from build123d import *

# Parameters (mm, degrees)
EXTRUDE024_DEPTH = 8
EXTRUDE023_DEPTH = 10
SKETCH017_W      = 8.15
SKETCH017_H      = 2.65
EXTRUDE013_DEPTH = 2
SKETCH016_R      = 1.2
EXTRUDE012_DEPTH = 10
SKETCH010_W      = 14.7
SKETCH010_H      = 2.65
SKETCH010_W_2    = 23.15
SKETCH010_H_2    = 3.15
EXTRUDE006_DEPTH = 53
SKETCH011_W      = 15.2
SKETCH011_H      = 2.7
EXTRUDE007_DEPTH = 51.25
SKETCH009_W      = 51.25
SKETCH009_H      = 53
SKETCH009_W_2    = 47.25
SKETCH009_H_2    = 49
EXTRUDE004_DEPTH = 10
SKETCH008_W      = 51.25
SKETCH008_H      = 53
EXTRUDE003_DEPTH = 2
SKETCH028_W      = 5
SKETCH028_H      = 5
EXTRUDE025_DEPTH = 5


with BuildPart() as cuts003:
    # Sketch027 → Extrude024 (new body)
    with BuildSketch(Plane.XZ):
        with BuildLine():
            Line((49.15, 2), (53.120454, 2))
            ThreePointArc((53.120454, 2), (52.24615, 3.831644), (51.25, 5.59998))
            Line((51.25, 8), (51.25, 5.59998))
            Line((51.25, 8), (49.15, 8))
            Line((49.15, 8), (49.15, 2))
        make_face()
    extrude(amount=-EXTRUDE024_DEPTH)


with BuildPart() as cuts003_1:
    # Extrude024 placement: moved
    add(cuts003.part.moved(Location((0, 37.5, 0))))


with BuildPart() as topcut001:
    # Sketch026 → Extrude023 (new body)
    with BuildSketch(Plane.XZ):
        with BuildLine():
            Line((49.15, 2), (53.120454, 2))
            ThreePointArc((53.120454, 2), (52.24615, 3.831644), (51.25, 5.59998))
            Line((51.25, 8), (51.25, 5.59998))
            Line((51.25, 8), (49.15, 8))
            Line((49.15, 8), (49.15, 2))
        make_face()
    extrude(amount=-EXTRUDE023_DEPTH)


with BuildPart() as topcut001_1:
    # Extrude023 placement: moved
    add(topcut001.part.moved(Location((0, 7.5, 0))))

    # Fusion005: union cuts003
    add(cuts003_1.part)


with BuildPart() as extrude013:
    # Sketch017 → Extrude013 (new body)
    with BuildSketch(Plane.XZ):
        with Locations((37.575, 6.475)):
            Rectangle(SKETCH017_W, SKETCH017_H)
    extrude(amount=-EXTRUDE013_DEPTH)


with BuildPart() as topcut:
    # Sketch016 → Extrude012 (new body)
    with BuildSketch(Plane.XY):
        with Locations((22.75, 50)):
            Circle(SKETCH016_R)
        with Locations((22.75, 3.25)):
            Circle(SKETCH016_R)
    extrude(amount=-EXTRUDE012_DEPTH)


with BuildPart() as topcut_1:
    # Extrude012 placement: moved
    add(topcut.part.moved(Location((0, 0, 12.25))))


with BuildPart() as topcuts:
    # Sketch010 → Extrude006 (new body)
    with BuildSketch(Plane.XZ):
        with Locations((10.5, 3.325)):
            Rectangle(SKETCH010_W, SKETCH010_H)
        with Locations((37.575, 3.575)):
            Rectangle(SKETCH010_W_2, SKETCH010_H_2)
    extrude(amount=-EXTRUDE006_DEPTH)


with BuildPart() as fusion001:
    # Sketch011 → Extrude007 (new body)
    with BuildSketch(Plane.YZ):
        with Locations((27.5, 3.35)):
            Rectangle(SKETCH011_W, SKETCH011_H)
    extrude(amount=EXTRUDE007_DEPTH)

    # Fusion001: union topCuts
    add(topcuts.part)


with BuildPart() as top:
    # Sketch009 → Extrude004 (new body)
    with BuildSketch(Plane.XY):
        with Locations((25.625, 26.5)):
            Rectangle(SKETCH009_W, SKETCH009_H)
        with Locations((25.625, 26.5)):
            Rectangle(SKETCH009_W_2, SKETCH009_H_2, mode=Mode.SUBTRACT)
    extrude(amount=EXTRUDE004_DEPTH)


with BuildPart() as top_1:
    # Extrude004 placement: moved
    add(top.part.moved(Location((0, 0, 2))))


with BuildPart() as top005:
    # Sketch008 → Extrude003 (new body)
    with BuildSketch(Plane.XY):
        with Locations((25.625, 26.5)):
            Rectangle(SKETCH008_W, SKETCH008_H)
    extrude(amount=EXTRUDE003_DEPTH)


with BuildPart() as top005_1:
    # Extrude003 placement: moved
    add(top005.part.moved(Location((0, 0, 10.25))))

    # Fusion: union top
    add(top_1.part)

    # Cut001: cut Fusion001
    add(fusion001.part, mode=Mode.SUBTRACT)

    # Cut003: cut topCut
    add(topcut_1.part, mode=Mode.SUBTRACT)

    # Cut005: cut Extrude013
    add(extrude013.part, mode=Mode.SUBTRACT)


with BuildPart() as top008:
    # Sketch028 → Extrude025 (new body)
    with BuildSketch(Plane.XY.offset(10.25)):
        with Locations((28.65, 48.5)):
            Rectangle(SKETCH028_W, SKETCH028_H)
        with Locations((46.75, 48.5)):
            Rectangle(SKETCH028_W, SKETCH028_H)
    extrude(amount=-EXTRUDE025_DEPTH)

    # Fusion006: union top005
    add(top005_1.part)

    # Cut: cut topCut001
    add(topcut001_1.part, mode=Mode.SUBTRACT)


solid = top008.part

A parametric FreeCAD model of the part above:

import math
import FreeCAD as App
import Part
import Sketcher
Q = App.Units.Quantity


def add_polygon(sketch, points):
    """Adds a closed chain of lines whose ends are joined by coincident constraints."""
    first, n = sketch.GeometryCount, len(points)
    for a, b in zip(points, points[1:] + points[:1]):
        sketch.addGeometry(Part.LineSegment(App.Vector(*a, 0), App.Vector(*b, 0)), False)
    for i in range(n):
        sketch.addConstraint(Sketcher.Constraint("Coincident", first + i, 2, first + (i + 1) % n, 1))

doc = App.newDocument("Part")
params = doc.addObject("Spreadsheet::Sheet", "Params")
for row, (alias, value) in enumerate([
    ("sketch1_height", "6 mm"),
    ("sketch1_width", "2.1 mm"),
    ("pad1_length", "8 mm"),
    ("sketch2_height", "6 mm"),
    ("sketch2_width", "2.1 mm"),
    ("pad2_length", "10 mm"),
    ("sketch3_width", "8.15 mm"),
    ("sketch3_height", "2.65 mm"),
    ("pad3_length", "2 mm"),
    ("sketch4_diameter", "2.4 mm"),
    ("pad4_length", "10 mm"),
    ("sketch5_width", "14.7 mm"),
    ("sketch5_width2", "23.15 mm"),
    ("sketch5_height", "2.65 mm"),
    ("sketch5_height2", "3.15 mm"),
    ("pad5_length", "53 mm"),
    ("sketch6_width", "15.2 mm"),
    ("sketch6_height", "2.7 mm"),
    ("pad6_length", "51.25 mm"),
    ("sketch7_height", "53 mm"),
    ("sketch7_height2", "49 mm"),
    ("sketch7_width", "51.25 mm"),
    ("pad7_length", "10 mm"),
    ("sketch8_height", "53 mm"),
    ("sketch8_width", "51.25 mm"),
    ("pad8_length", "2 mm"),
    ("sketch9_width", "5 mm"),
    ("pad9_length", "5 mm"),
], start=1):
    params.set(f"A{row}", alias)
    params.set(f"B{row}", "=" + value)
    params.setAlias(f"B{row}", alias)

body = doc.addObject("PartDesign::Body", "Body")

# Sketch on XZ plane
sketch1 = body.newObject("Sketcher::SketchObject", "Sketch")
sketch1.AttachmentSupport = (doc.getObject("XZ_Plane"), [""])
sketch1.MapMode = "FlatFace"
sketch1.addGeometry([
    Part.LineSegment(App.Vector(49.15, 2, 0), App.Vector(53.120454, 2, 0)),  # 0
    Part.ArcOfCircle(Part.Circle(App.Vector(25.625046, -9.999975, 0), App.Vector(0, 0, 1), 29.999947), math.radians(23.578169), math.radians(31.332211)),  # 1
    Part.LineSegment(App.Vector(51.25, 5.59998, 0), App.Vector(51.25, 8, 0)),  # 2
    Part.LineSegment(App.Vector(51.25, 8, 0), App.Vector(49.15, 8, 0)),  # 3
    Part.LineSegment(App.Vector(49.15, 8, 0), App.Vector(49.15, 2, 0)),  # 4
], False)
sketch1.addConstraint([
    Sketcher.Constraint("Coincident", 0, 2, 1, 1),
    Sketcher.Constraint("Coincident", 1, 2, 2, 1),
    Sketcher.Constraint("Coincident", 2, 2, 3, 1),
    Sketcher.Constraint("Coincident", 3, 2, 4, 1),
    Sketcher.Constraint("Coincident", 4, 2, 0, 1),
    Sketcher.Constraint("Horizontal", 0),
    Sketcher.Constraint("Vertical", 2),
    Sketcher.Constraint("Horizontal", 3),
    Sketcher.Constraint("Vertical", 4),
    Sketcher.Constraint("DistanceY", 4, 2, 4, 1, Q("6 mm")),
    Sketcher.Constraint("DistanceX", 3, 2, 3, 1, Q("2.1 mm")),
    Sketcher.Constraint("DistanceY", -1, 1, 0, 2, Q("2 mm")),
    Sketcher.Constraint("DistanceX", -1, 1, 1, 2, Q("51.25 mm")),
    Sketcher.Constraint("Radius", 1, Q("29.999947 mm")),
    Sketcher.Constraint("DistanceY", 2, 1, 2, 2, Q("2.40002 mm")),
    Sketcher.Constraint("DistanceX", 0, 1, 0, 2, Q("3.970454 mm")),
])
sketch1.setExpression("Constraints[9]", "Params.sketch1_height")
sketch1.setExpression("Constraints[10]", "Params.sketch1_width")
pad1 = body.newObject("PartDesign::Pad", "Pad")
pad1.Profile = sketch1
pad1.setExpression("Length", "Params.pad1_length")
pad1.Reversed = True
body2 = doc.addObject("PartDesign::Body", "Body001")
doc.recompute()

body.Placement = App.Placement(App.Vector(0, 37.5, 0), App.Rotation(App.Vector(0, 0, 1), 0))
boolean = body2.newObject("PartDesign::Boolean", "Boolean")
boolean.Type = "Fuse"
boolean.addObjects([body])
body3 = doc.addObject("PartDesign::Body", "Body002")

# Sketch on XZ plane
sketch2 = body3.newObject("Sketcher::SketchObject", "Sketch001")
sketch2.AttachmentSupport = (doc.getObject("XZ_Plane002"), [""])
sketch2.MapMode = "FlatFace"
sketch2.addGeometry([
    Part.LineSegment(App.Vector(49.15, 2, 0), App.Vector(53.120454, 2, 0)),  # 0
    Part.ArcOfCircle(Part.Circle(App.Vector(25.625046, -9.999975, 0), App.Vector(0, 0, 1), 29.999947), math.radians(23.578169), math.radians(31.332211)),  # 1
    Part.LineSegment(App.Vector(51.25, 5.59998, 0), App.Vector(51.25, 8, 0)),  # 2
    Part.LineSegment(App.Vector(51.25, 8, 0), App.Vector(49.15, 8, 0)),  # 3
    Part.LineSegment(App.Vector(49.15, 8, 0), App.Vector(49.15, 2, 0)),  # 4
], False)
sketch2.addConstraint([
    Sketcher.Constraint("Coincident", 0, 2, 1, 1),
    Sketcher.Constraint("Coincident", 1, 2, 2, 1),
    Sketcher.Constraint("Coincident", 2, 2, 3, 1),
    Sketcher.Constraint("Coincident", 3, 2, 4, 1),
    Sketcher.Constraint("Coincident", 4, 2, 0, 1),
    Sketcher.Constraint("Horizontal", 0),
    Sketcher.Constraint("Vertical", 2),
    Sketcher.Constraint("Horizontal", 3),
    Sketcher.Constraint("Vertical", 4),
    Sketcher.Constraint("DistanceY", 4, 2, 4, 1, Q("6 mm")),
    Sketcher.Constraint("DistanceX", 3, 2, 3, 1, Q("2.1 mm")),
    Sketcher.Constraint("DistanceY", -1, 1, 0, 2, Q("2 mm")),
    Sketcher.Constraint("DistanceX", -1, 1, 1, 2, Q("51.25 mm")),
    Sketcher.Constraint("Radius", 1, Q("29.999947 mm")),
    Sketcher.Constraint("DistanceY", 2, 1, 2, 2, Q("2.40002 mm")),
    Sketcher.Constraint("DistanceX", 0, 1, 0, 2, Q("3.970454 mm")),
])
sketch2.setExpression("Constraints[9]", "Params.sketch2_height")
sketch2.setExpression("Constraints[10]", "Params.sketch2_width")
pad2 = body3.newObject("PartDesign::Pad", "Pad001")
pad2.Profile = sketch2
pad2.setExpression("Length", "Params.pad2_length")
pad2.Reversed = True
body4 = doc.addObject("PartDesign::Body", "Body003")
body4.AllowCompound = True
doc.recompute()

body3.Placement = App.Placement(App.Vector(0, 7.5, 0), App.Rotation(App.Vector(0, 0, 1), 0))
boolean2 = body4.newObject("PartDesign::Boolean", "Boolean001")
boolean2.Type = "Fuse"
boolean2.addObjects([body3])
doc.recompute()

boolean3 = body4.newObject("PartDesign::Boolean", "Boolean002")
boolean3.Type = "Fuse"
boolean3.addObjects([body2])
body5 = doc.addObject("PartDesign::Body", "Body004")

# Sketch on XZ plane
sketch3 = body5.newObject("Sketcher::SketchObject", "Sketch002")
sketch3.AttachmentSupport = (doc.getObject("XZ_Plane004"), [""])
sketch3.MapMode = "FlatFace"
add_polygon(sketch3, [(33.5, 7.8), (33.5, 5.15), (41.65, 5.15), (41.65, 7.8)])  # lines 0-3
sketch3.addConstraint([
    Sketcher.Constraint("Vertical", 0),
    Sketcher.Constraint("Horizontal", 1),
    Sketcher.Constraint("Vertical", 2),
    Sketcher.Constraint("Horizontal", 3),
    Sketcher.Constraint("DistanceX", 1, 1, 1, 2, Q("8.15 mm")),
    Sketcher.Constraint("DistanceY", 0, 2, 0, 1, Q("2.65 mm")),
    Sketcher.Constraint("DistanceX", -1, 1, 0, 2, Q("33.5 mm")),
    Sketcher.Constraint("DistanceY", -1, 1, 2, 2, Q("7.8 mm")),
])
sketch3.setExpression("Constraints[8]", "Params.sketch3_width")
sketch3.setExpression("Constraints[9]", "Params.sketch3_height")
pad3 = body5.newObject("PartDesign::Pad", "Pad002")
pad3.Profile = sketch3
pad3.setExpression("Length", "Params.pad3_length")
pad3.Reversed = True
body6 = doc.addObject("PartDesign::Body", "Body005")
body6.AllowCompound = True

# Sketch on XY plane
sketch4 = body6.newObject("Sketcher::SketchObject", "Sketch003")
sketch4.AttachmentSupport = (doc.getObject("XY_Plane005"), [""])
sketch4.MapMode = "FlatFace"
sketch4.addGeometry([
    Part.Circle(App.Vector(22.75, 50, 0), App.Vector(0, 0, 1), 1.2),
    Part.Circle(App.Vector(22.75, 3.25, 0), App.Vector(0, 0, 1), 1.2),
], False)
sketch4.addConstraint([
    Sketcher.Constraint("Equal", 0, 1),
    Sketcher.Constraint("Vertical", 0, 3, 1, 3),
    Sketcher.Constraint("Diameter", 0, Q("2.4 mm")),
    Sketcher.Constraint("DistanceY", -1, 1, 0, 3, Q("50 mm")),
    Sketcher.Constraint("DistanceX", -1, 1, 0, 3, Q("22.75 mm")),
    Sketcher.Constraint("DistanceY", -1, 1, 1, 3, Q("3.25 mm")),
])
sketch4.setExpression("Constraints[2]", "Params.sketch4_diameter")
pad4 = body6.newObject("PartDesign::Pad", "Pad003")
pad4.Profile = sketch4
pad4.setExpression("Length", "Params.pad4_length")
pad4.Reversed = True
body7 = doc.addObject("PartDesign::Body", "Body006")
body7.AllowCompound = True
doc.recompute()

body6.Placement = App.Placement(App.Vector(0, 0, 12.25), App.Rotation(App.Vector(0, 0, 1), 0))
boolean4 = body7.newObject("PartDesign::Boolean", "Boolean003")
boolean4.Type = "Fuse"
boolean4.addObjects([body6])
body8 = doc.addObject("PartDesign::Body", "Body007")
body8.AllowCompound = True

# Sketch on XZ plane
sketch5 = body8.newObject("Sketcher::SketchObject", "Sketch004")
sketch5.AttachmentSupport = (doc.getObject("XZ_Plane007"), [""])
sketch5.MapMode = "FlatFace"
add_polygon(sketch5, [(3.15, 4.65), (3.15, 2), (17.85, 2), (17.85, 4.65)])  # lines 0-3
add_polygon(sketch5, [(26, 5.15), (26, 2), (49.15, 2), (49.15, 5.15)])  # lines 4-7
sketch5.addConstraint([
    Sketcher.Constraint("Vertical", 0),
    Sketcher.Constraint("Horizontal", 1),
    Sketcher.Constraint("Vertical", 2),
    Sketcher.Constraint("Horizontal", 3),
    Sketcher.Constraint("Vertical", 4),
    Sketcher.Constraint("Horizontal", 5),
    Sketcher.Constraint("Vertical", 6),
    Sketcher.Constraint("Horizontal", 7),
    Sketcher.Constraint("Horizontal", 1, 2, 4, 2),
    Sketcher.Constraint("DistanceX", 1, 1, 1, 2, Q("14.7 mm")),
    Sketcher.Constraint("DistanceY", -1, 1, 0, 2, Q("2 mm")),
    Sketcher.Constraint("DistanceX", -1, 1, 4, 2, Q("26 mm")),
    Sketcher.Constraint("DistanceX", 0, 2, 5, 2, Q("46 mm")),
    Sketcher.Constraint("DistanceX", 5, 1, 5, 2, Q("23.15 mm")),
    Sketcher.Constraint("DistanceY", 0, 2, 0, 1, Q("2.65 mm")),
    Sketcher.Constraint("DistanceY", 4, 2, 4, 1, Q("3.15 mm")),
])
sketch5.setExpression("Constraints[17]", "Params.sketch5_width")
sketch5.setExpression("Constraints[21]", "Params.sketch5_width2")
sketch5.setExpression("Constraints[22]", "Params.sketch5_height")
sketch5.setExpression("Constraints[23]", "Params.sketch5_height2")
pad5 = body8.newObject("PartDesign::Pad", "Pad004")
pad5.Profile = sketch5
pad5.setExpression("Length", "Params.pad5_length")
pad5.Reversed = True
body9 = doc.addObject("PartDesign::Body", "Body008")

# Sketch on YZ plane
sketch6 = body9.newObject("Sketcher::SketchObject", "Sketch005")
sketch6.AttachmentSupport = (doc.getObject("YZ_Plane008"), [""])
sketch6.MapMode = "FlatFace"
add_polygon(sketch6, [(19.9, 4.7), (19.9, 2), (35.1, 2), (35.1, 4.7)])  # lines 0-3
sketch6.addConstraint([
    Sketcher.Constraint("Vertical", 0),
    Sketcher.Constraint("Horizontal", 1),
    Sketcher.Constraint("Vertical", 2),
    Sketcher.Constraint("Horizontal", 3),
    Sketcher.Constraint("DistanceX", 1, 1, 1, 2, Q("15.2 mm")),
    Sketcher.Constraint("DistanceY", 0, 2, 0, 1, Q("2.7 mm")),
    Sketcher.Constraint("DistanceY", -1, 1, 0, 2, Q("2 mm")),
    Sketcher.Constraint("DistanceX", -1, 1, 0, 2, Q("19.9 mm")),
])
sketch6.setExpression("Constraints[8]", "Params.sketch6_width")
sketch6.setExpression("Constraints[9]", "Params.sketch6_height")
pad6 = body9.newObject("PartDesign::Pad", "Pad005")
pad6.Profile = sketch6
pad6.setExpression("Length", "Params.pad6_length")
doc.recompute()

boolean5 = body9.newObject("PartDesign::Boolean", "Boolean004")
boolean5.Type = "Fuse"
boolean5.addObjects([body8])
body10 = doc.addObject("PartDesign::Body", "Body009")

# Sketch on XY plane
sketch7 = body10.newObject("Sketcher::SketchObject", "Sketch006")
sketch7.AttachmentSupport = (doc.getObject("XY_Plane009"), [""])
sketch7.MapMode = "FlatFace"
add_polygon(sketch7, [(0, 53), (0, 0), (51.25, 0), (51.25, 53)])  # lines 0-3
add_polygon(sketch7, [(49.25, 2), (2, 2), (2, 51), (49.25, 51)])  # lines 4-7
sketch7.addConstraint([
    Sketcher.Constraint("Vertical", 0),
    Sketcher.Constraint("Horizontal", 1),
    Sketcher.Constraint("Vertical", 2),
    Sketcher.Constraint("Horizontal", 3),
    Sketcher.Constraint("Horizontal", 4),
    Sketcher.Constraint("Vertical", 5),
    Sketcher.Constraint("Horizontal", 6),
    Sketcher.Constraint("Vertical", 7),
    Sketcher.Constraint("Coincident", 0, 2, -1, 1),
    Sketcher.Constraint("DistanceY", 0, 2, 0, 1, Q("53 mm")),
    Sketcher.Constraint("DistanceY", 5, 1, 5, 2, Q("49 mm")),
    Sketcher.Constraint("DistanceX", -1, 1, 4, 2, Q("2 mm")),
    Sketcher.Constraint("DistanceY", -1, 1, 4, 2, Q("2 mm")),
    Sketcher.Constraint("DistanceX", 6, 2, 2, 2, Q("2 mm")),
    Sketcher.Constraint("DistanceX", 1, 1, 1, 2, Q("51.25 mm")),
])
sketch7.setExpression("Constraints[17]", "Params.sketch7_height")
sketch7.setExpression("Constraints[18]", "Params.sketch7_height2")
sketch7.setExpression("Constraints[22]", "Params.sketch7_width")
pad7 = body10.newObject("PartDesign::Pad", "Pad006")
pad7.Profile = sketch7
pad7.setExpression("Length", "Params.pad7_length")
body11 = doc.addObject("PartDesign::Body", "Body010")
doc.recompute()

body10.Placement = App.Placement(App.Vector(0, 0, 2), App.Rotation(App.Vector(0, 0, 1), 0))
boolean6 = body11.newObject("PartDesign::Boolean", "Boolean005")
boolean6.Type = "Fuse"
boolean6.addObjects([body10])
body12 = doc.addObject("PartDesign::Body", "Body011")

# Sketch on XY plane
sketch8 = body12.newObject("Sketcher::SketchObject", "Sketch007")
sketch8.AttachmentSupport = (doc.getObject("XY_Plane011"), [""])
sketch8.MapMode = "FlatFace"
add_polygon(sketch8, [(0, 53), (0, 0), (51.25, 0), (51.25, 53)])  # lines 0-3
sketch8.addConstraint([
    Sketcher.Constraint("Vertical", 0),
    Sketcher.Constraint("Horizontal", 1),
    Sketcher.Constraint("Vertical", 2),
    Sketcher.Constraint("Horizontal", 3),
    Sketcher.Constraint("Coincident", 0, 2, -1, 1),
    Sketcher.Constraint("DistanceY", 0, 2, 0, 1, Q("53 mm")),
    Sketcher.Constraint("DistanceX", 1, 1, 1, 2, Q("51.25 mm")),
])
sketch8.setExpression("Constraints[9]", "Params.sketch8_height")
sketch8.setExpression("Constraints[10]", "Params.sketch8_width")
pad8 = body12.newObject("PartDesign::Pad", "Pad007")
pad8.Profile = sketch8
pad8.setExpression("Length", "Params.pad8_length")
body13 = doc.addObject("PartDesign::Body", "Body012")
doc.recompute()

body12.Placement = App.Placement(App.Vector(0, 0, 10.25), App.Rotation(App.Vector(0, 0, 1), 0))
boolean7 = body13.newObject("PartDesign::Boolean", "Boolean006")
boolean7.Type = "Fuse"
boolean7.addObjects([body12])
doc.recompute()

boolean8 = body13.newObject("PartDesign::Boolean", "Boolean007")
boolean8.Type = "Fuse"
boolean8.addObjects([body11])
doc.recompute()

boolean9 = body13.newObject("PartDesign::Boolean", "Boolean008")
boolean9.Type = "Cut"
boolean9.addObjects([body9])
doc.recompute()

boolean10 = body13.newObject("PartDesign::Boolean", "Boolean009")
boolean10.Type = "Cut"
boolean10.addObjects([body7])
doc.recompute()

boolean11 = body13.newObject("PartDesign::Boolean", "Boolean010")
boolean11.Type = "Cut"
boolean11.addObjects([body5])
body14 = doc.addObject("PartDesign::Body", "Body013")
body14.AllowCompound = True

# Sketch on XY plane
sketch9 = body14.newObject("Sketcher::SketchObject", "Sketch008")
sketch9.AttachmentSupport = (doc.getObject("XY_Plane013"), [""])
sketch9.MapMode = "FlatFace"
sketch9.AttachmentOffset = App.Placement(App.Vector(0, 0, 10.25), App.Rotation())
add_polygon(sketch9, [(26.15, 51), (26.15, 46), (31.15, 46), (31.15, 51)])  # lines 0-3
add_polygon(sketch9, [(44.25, 51), (44.25, 46), (49.25, 46), (49.25, 51)])  # lines 4-7
sketch9.addConstraint([
    Sketcher.Constraint("Vertical", 0),
    Sketcher.Constraint("Horizontal", 1),
    Sketcher.Constraint("Vertical", 2),
    Sketcher.Constraint("Horizontal", 3),
    Sketcher.Constraint("Vertical", 4),
    Sketcher.Constraint("Horizontal", 5),
    Sketcher.Constraint("Vertical", 6),
    Sketcher.Constraint("Horizontal", 7),
    Sketcher.Constraint("Horizontal", 1, 2, 4, 2),
    Sketcher.Constraint("Horizontal", 3, 2, 6, 2),
    Sketcher.Constraint("Equal", 3, 5),
    Sketcher.Constraint("Equal", 7, 0),
    Sketcher.Constraint("DistanceX", 1, 1, 1, 2, Q("5 mm")),
    Sketcher.Constraint("DistanceY", -1, 1, 0, 2, Q("46 mm")),
    Sketcher.Constraint("DistanceX", 1, 2, 4, 2, Q("13.1 mm")),
    Sketcher.Constraint("DistanceX", -1, 1, 0, 2, Q("26.15 mm")),
])
sketch9.setExpression("Constraints[20]", "Params.sketch9_width")
pad9 = body14.newObject("PartDesign::Pad", "Pad008")
pad9.Profile = sketch9
pad9.setExpression("Length", "Params.pad9_length")
pad9.Reversed = True
doc.recompute()

boolean12 = body14.newObject("PartDesign::Boolean", "Boolean011")
boolean12.Type = "Fuse"
boolean12.addObjects([body13])
doc.recompute()

boolean13 = body14.newObject("PartDesign::Boolean", "Boolean012")
boolean13.Type = "Cut"
boolean13.addObjects([body4])

doc.recompute()
